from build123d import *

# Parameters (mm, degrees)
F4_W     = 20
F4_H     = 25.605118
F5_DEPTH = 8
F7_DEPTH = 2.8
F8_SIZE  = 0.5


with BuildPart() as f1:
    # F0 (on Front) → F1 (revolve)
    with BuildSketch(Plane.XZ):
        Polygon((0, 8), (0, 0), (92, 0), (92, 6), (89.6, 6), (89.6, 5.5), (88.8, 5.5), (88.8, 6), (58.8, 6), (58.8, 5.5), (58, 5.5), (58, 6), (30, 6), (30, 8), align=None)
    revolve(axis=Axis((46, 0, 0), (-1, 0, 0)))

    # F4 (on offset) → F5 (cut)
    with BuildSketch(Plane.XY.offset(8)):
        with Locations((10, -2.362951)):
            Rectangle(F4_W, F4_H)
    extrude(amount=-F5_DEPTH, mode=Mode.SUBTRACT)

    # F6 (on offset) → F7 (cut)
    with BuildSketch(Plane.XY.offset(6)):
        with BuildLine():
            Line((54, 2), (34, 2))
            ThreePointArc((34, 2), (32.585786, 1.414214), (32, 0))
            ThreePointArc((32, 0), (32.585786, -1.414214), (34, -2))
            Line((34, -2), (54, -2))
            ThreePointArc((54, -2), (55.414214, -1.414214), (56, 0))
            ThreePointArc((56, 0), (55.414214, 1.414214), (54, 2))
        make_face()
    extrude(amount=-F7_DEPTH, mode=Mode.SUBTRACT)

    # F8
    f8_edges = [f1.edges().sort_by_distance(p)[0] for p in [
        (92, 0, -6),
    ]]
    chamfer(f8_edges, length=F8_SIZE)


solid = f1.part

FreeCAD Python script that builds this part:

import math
import FreeCAD as App
import Part
import Sketcher
from FreeCAD import Vector
Q = App.Units.Quantity


def edges_at(feature, points):
    """Names of the edges that pass closest to the given points."""
    edges = feature.Shape.Edges
    near = lambda p: min(range(len(edges)), key=lambda i: edges[i].distToShape(Part.Vertex(*p))[0])
    return sorted({f"Edge{near(p) + 1}" for p in points})

doc = App.newDocument("Part")
body = doc.addObject("PartDesign::Body", "Body")

sketch1 = body.newObject("Sketcher::SketchObject", "Sketch")
sketch1.AttachmentSupport = (doc.getObject("XZ_Plane"), [""])
sketch1.MapMode = "FlatFace"
sketch1.addGeometry([
    Part.LineSegment(Vector(0, 8, 0), Vector(0, 0, 0)),
    Part.LineSegment(Vector(0, 0, 0), Vector(92, 0, 0)),
    Part.LineSegment(Vector(92, 0, 0), Vector(92, 6, 0)),
    Part.LineSegment(Vector(92, 6, 0), Vector(89.6, 6, 0)),
    Part.LineSegment(Vector(89.6, 6, 0), Vector(89.6, 5.5, 0)),
    Part.LineSegment(Vector(89.6, 5.5, 0), Vector(88.8, 5.5, 0)),
    Part.LineSegment(Vector(88.8, 5.5, 0), Vector(88.8, 6, 0)),
    Part.LineSegment(Vector(88.8, 6, 0), Vector(58.8, 6, 0)),
    Part.LineSegment(Vector(58.8, 6, 0), Vector(58.8, 5.5, 0)),
    Part.LineSegment(Vector(58.8, 5.5, 0), Vector(58, 5.5, 0)),
    Part.LineSegment(Vector(58, 5.5, 0), Vector(58, 6, 0)),
    Part.LineSegment(Vector(58, 6, 0), Vector(30, 6, 0)),
    Part.LineSegment(Vector(30, 6, 0), Vector(30, 8, 0)),
    Part.LineSegment(Vector(30, 8, 0), Vector(0, 8, 0)),
], False)
sketch1.addConstraint([
    Sketcher.Constraint("Coincident", 0, 2, 1, 1),
    Sketcher.Constraint("Coincident", 1, 2, 2, 1),
    Sketcher.Constraint("Coincident", 2, 2, 3, 1),
    Sketcher.Constraint("Coincident", 3, 2, 4, 1),
    Sketcher.Constraint("Coincident", 4, 2, 5, 1),
    Sketcher.Constraint("Coincident", 5, 2, 6, 1),
    Sketcher.Constraint("Coincident", 6, 2, 7, 1),
    Sketcher.Constraint("Coincident", 7, 2, 8, 1),
    Sketcher.Constraint("Coincident", 8, 2, 9, 1),
    Sketcher.Constraint("Coincident", 9, 2, 10, 1),
    Sketcher.Constraint("Coincident", 10, 2, 11, 1),
    Sketcher.Constraint("Coincident", 11, 2, 12, 1),
    Sketcher.Constraint("Coincident", 12, 2, 13, 1),
    Sketcher.Constraint("Coincident", 13, 2, 0, 1),
    Sketcher.Constraint("Vertical", 0),
    Sketcher.Constraint("Horizontal", 1),
    Sketcher.Constraint("Vertical", 2),
    Sketcher.Constraint("Horizontal", 3),
    Sketcher.Constraint("Vertical", 4),
    Sketcher.Constraint("Horizontal", 5),
    Sketcher.Constraint("Vertical", 6),
    Sketcher.Constraint("Horizontal", 7),
    Sketcher.Constraint("Vertical", 8),
    Sketcher.Constraint("Horizontal", 9),
    Sketcher.Constraint("Vertical", 10),
    Sketcher.Constraint("Horizontal", 11),
    Sketcher.Constraint("Vertical", 12),
    Sketcher.Constraint("Horizontal", 13),
    Sketcher.Constraint("Coincident", 0, 2, -1, 1),
    Sketcher.Constraint("Horizontal", 3, 2, 6, 2),
    Sketcher.Constraint("Horizontal", 5, 2, 8, 2),
    Sketcher.Constraint("Horizontal", 7, 2, 10, 2),
    Sketcher.Constraint("Equal", 5, 9),
    Sketcher.Constraint("Equal", 7, 13),
    Sketcher.Constraint("DistanceX", 1, 1, 1, 2, Q("92 mm")),
    Sketcher.Constraint("DistanceX", 7, 2, 7, 1, Q("30 mm")),
    Sketcher.Constraint("DistanceX", 11, 2, 11, 1, Q("28 mm")),
    Sketcher.Constraint("DistanceY", 0, 2, 0, 1, Q("8 mm")),
    Sketcher.Constraint("DistanceY", 2, 1, 2, 2, Q("6 mm")),
    Sketcher.Constraint("DistanceX", 3, 2, 3, 1, Q("2.4 mm")),
    Sketcher.Constraint("DistanceY", 4, 2, 4, 1, Q("0.5 mm")),
])
revolution = body.newObject("PartDesign::Revolution", "Revolution")
revolution.Profile = sketch1
revolution.ReferenceAxis = (sketch1, ["H_Axis"])
revolution.Angle = 360

sketch2 = body.newObject("Sketcher::SketchObject", "Sketch001")
sketch2.AttachmentSupport = (doc.getObject("XY_Plane"), [""])
sketch2.MapMode = "FlatFace"
sketch2.AttachmentOffset = App.Placement(Vector(0, 0, 8), App.Rotation())
sketch2.addGeometry([
    Part.LineSegment(Vector(0, 10, 0), Vector(0, -15, 0)),
    Part.LineSegment(Vector(0, -15, 0), Vector(20, -15, 0)),
    Part.LineSegment(Vector(20, -15, 0), Vector(20, 10, 0)),
    Part.LineSegment(Vector(20, 10, 0), Vector(0, 10, 0)),
], False)
sketch2.addConstraint([
    Sketcher.Constraint("Coincident", 0, 2, 1, 1),
    Sketcher.Constraint("Coincident", 1, 2, 2, 1),
    Sketcher.Constraint("Coincident", 2, 2, 3, 1),
    Sketcher.Constraint("Coincident", 3, 2, 0, 1),
    Sketcher.Constraint("Vertical", 0),
    Sketcher.Constraint("Horizontal", 1),
    Sketcher.Constraint("Vertical", 2),
    Sketcher.Constraint("Horizontal", 3),
    Sketcher.Constraint("PointOnObject", 0, 2, -2),
    Sketcher.Constraint("DistanceX", 1, 1, 1, 2, Q("20 mm")),
    Sketcher.Constraint("DistanceY", 0, 2, 0, 1, Q("25.605118 mm")),
    Sketcher.Constraint("DistanceY", 0, 2, -1, 1, Q("15.16551 mm")),
])
pocket1 = body.newObject("PartDesign::Pocket", "Pocket")
pocket1.Profile = sketch2
pocket1.Length = 8

sketch3 = body.newObject("Sketcher::SketchObject", "Sketch002")
sketch3.AttachmentSupport = (doc.getObject("XY_Plane"), [""])
sketch3.MapMode = "FlatFace"
sketch3.AttachmentOffset = App.Placement(Vector(0, 0, 6), App.Rotation())
sketch3.addGeometry([
    Part.LineSegment(Vector(54, 2, 0), Vector(34, 2, 0)),
    Part.ArcOfCircle(Part.Circle(Vector(34, 0, 0), Vector(0, 0, 1), 2), math.radians(90), math.radians(180)),
    Part.ArcOfCircle(Part.Circle(Vector(34, 0, 0), Vector(0, 0, 1), 2), math.radians(180), math.radians(270)),
    Part.LineSegment(Vector(34, -2, 0), Vector(54, -2, 0)),
    Part.ArcOfCircle(Part.Circle(Vector(54, 0, 0), Vector(0, 0, 1), 2), math.radians(-90), math.radians(0)),
    Part.ArcOfCircle(Part.Circle(Vector(54, 0, 0), Vector(0, 0, 1), 2), math.radians(0), math.radians(90)),
], False)
sketch3.addConstraint([
    Sketcher.Constraint("Tangent", 0, 2, 1, 1),
    Sketcher.Constraint("Tangent", 1, 2, 2, 1),
    Sketcher.Constraint("Tangent", 2, 2, 3, 1),
    Sketcher.Constraint("Tangent", 3, 2, 4, 1),
    Sketcher.Constraint("Tangent", 4, 2, 5, 1),
    Sketcher.Constraint("Tangent", 5, 2, 0, 1),
    Sketcher.Constraint("Horizontal", 0),
    Sketcher.Constraint("Horizontal", 3),
    Sketcher.Constraint("Equal", 1, 2),
    Sketcher.Constraint("Equal", 2, 4),
    Sketcher.Constraint("PointOnObject", 1, 3, -1),
    Sketcher.Constraint("PointOnObject", 1, 2, -1),
    Sketcher.Constraint("PointOnObject", 4, 2, -1),
    Sketcher.Constraint("Radius", 1, Q("1.999999 mm")),
    Sketcher.Constraint("DistanceX", 0, 2, 0, 1, Q("20 mm")),
    Sketcher.Constraint("DistanceX", -1, 1, 1, 3, Q("33.999999 mm")),
])
pocket2 = body.newObject("PartDesign::Pocket", "Pocket001")
pocket2.Profile = sketch3
pocket2.Length = 2.8
doc.recompute()

chamfer = body.newObject("PartDesign::Chamfer", "Chamfer")
chamfer.Base = (pocket2, edges_at(pocket2, [(92, 0, -6)]))
chamfer.Size = 0.5

doc.recompute()
